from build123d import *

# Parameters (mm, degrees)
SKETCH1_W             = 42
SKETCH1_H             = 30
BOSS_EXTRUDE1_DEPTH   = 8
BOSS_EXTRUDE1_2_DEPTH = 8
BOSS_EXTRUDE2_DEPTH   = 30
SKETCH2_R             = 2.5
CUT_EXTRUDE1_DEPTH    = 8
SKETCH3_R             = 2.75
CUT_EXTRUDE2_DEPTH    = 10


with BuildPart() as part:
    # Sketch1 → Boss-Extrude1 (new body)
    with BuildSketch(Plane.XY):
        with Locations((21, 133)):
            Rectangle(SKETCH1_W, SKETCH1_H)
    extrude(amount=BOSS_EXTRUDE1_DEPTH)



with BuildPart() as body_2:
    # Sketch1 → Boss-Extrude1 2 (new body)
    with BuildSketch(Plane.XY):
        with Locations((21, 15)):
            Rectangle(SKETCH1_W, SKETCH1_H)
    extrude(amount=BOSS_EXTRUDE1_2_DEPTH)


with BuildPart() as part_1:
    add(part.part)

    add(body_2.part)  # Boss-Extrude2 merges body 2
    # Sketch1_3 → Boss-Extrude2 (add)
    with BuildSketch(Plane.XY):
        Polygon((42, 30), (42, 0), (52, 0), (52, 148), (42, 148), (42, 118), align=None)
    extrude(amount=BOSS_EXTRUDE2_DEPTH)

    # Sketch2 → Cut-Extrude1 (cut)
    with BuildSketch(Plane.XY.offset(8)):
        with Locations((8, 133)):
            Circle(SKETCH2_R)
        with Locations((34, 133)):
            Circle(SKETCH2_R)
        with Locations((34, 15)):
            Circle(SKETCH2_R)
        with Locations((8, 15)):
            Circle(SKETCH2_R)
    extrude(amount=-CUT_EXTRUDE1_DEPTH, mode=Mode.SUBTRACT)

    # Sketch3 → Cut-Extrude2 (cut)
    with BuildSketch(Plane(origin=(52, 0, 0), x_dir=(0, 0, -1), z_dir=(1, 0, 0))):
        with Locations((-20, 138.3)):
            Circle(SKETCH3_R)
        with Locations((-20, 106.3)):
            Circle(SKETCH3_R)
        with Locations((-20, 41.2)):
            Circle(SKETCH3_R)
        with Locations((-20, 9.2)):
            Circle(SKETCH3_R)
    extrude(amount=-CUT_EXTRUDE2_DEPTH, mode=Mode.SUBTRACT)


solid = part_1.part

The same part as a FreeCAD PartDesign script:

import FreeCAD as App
import Part
import Sketcher

V = App.Vector


def add_polygon(sketch, points):
    """Adds a closed chain of lines whose ends are joined by coincident constraints."""
    first, n = sketch.GeometryCount, len(points)
    for a, b in zip(points, points[1:] + points[:1]):
        sketch.addGeometry(Part.LineSegment(App.Vector(*a, 0), App.Vector(*b, 0)), False)
    for i in range(n):
        sketch.addConstraint(Sketcher.Constraint("Coincident", first + i, 2, first + (i + 1) % n, 1))

doc = App.newDocument("Part")
params = doc.addObject("Spreadsheet::Sheet", "Params")
for row, (alias, value) in enumerate([
    ("sketch1_width", "42 mm"),
    ("sketch1_height", "30 mm"),
    ("pad1_length", "8 mm"),
    ("sketch2_width", "42 mm"),
    ("sketch2_height", "30 mm"),
    ("pad2_length", "8 mm"),
    ("sketch3_width", "10 mm"),
    ("sketch3_height", "148 mm"),
    ("pad3_length", "30 mm"),
    ("sketch4_diameter", "5 mm"),
    ("pocket1_length", "8 mm"),
    ("sketch5_diameter", "5.5 mm"),
    ("pocket2_length", "10 mm"),
], start=1):
    params.set(f"A{row}", alias)
    params.set(f"B{row}", "=" + value)
    params.setAlias(f"B{row}", alias)

body = doc.addObject("PartDesign::Body", "Body")

sketch1 = doc.addObject("Sketcher::SketchObject", "Sketch")
body.addObject(sketch1)
sketch1.AttachmentSupport = (doc.XY_Plane, [""])
sketch1.MapMode = "FlatFace"
add_polygon(sketch1, [(0, 148), (0, 118), (42, 118), (42, 148)])
sketch1.addConstraint(Sketcher.Constraint("Vertical", 0))
sketch1.addConstraint(Sketcher.Constraint("Horizontal", 1))
sketch1.addConstraint(Sketcher.Constraint("Vertical", 2))
sketch1.addConstraint(Sketcher.Constraint("Horizontal", 3))
sketch1.addConstraint(Sketcher.Constraint("PointOnObject", 0, 2, -2))
sketch1.addConstraint(Sketcher.Constraint("DistanceX", 1, 1, 1, 2, 42.0))
sketch1.addConstraint(Sketcher.Constraint("DistanceY", 0, 2, 0, 1, 30.0))
sketch1.addConstraint(Sketcher.Constraint("DistanceY", -1, 1, 0, 2, 118.0))
sketch1.setExpression("Constraints[9]", "Params.sketch1_width")
sketch1.setExpression("Constraints[10]", "Params.sketch1_height")
pad1 = doc.addObject("PartDesign::Pad", "Pad")
body.addObject(pad1)
pad1.Profile = sketch1
pad1.setExpression("Length", "Params.pad1_length")
body2 = doc.addObject("PartDesign::Body", "Body001")

sketch2 = doc.addObject("Sketcher::SketchObject", "Sketch001")
body2.addObject(sketch2)
sketch2.AttachmentSupport = (doc.getObject("XY_Plane001"), [""])
sketch2.MapMode = "FlatFace"
add_polygon(sketch2, [(0, 30), (0, 0), (42, 0), (42, 30)])
sketch2.addConstraint(Sketcher.Constraint("Vertical", 0))
sketch2.addConstraint(Sketcher.Constraint("Horizontal", 1))
sketch2.addConstraint(Sketcher.Constraint("Vertical", 2))
sketch2.addConstraint(Sketcher.Constraint("Horizontal", 3))
sketch2.addConstraint(Sketcher.Constraint("Coincident", 0, 2, -1, 1))
sketch2.addConstraint(Sketcher.Constraint("DistanceX", 1, 1, 1, 2, 42.0))
sketch2.addConstraint(Sketcher.Constraint("DistanceY", 0, 2, 0, 1, 30.0))
sketch2.setExpression("Constraints[9]", "Params.sketch2_width")
sketch2.setExpression("Constraints[10]", "Params.sketch2_height")
pad2 = doc.addObject("PartDesign::Pad", "Pad001")
body2.addObject(pad2)
pad2.Profile = sketch2
pad2.setExpression("Length", "Params.pad2_length")
body.AllowCompound = True
doc.recompute()

boolean = doc.addObject("PartDesign::Boolean", "Boolean")
body.addObject(boolean)
boolean.Type = "Fuse"
boolean.addObjects([body2])

sketch3 = doc.addObject("Sketcher::SketchObject", "Sketch002")
body.addObject(sketch3)
sketch3.AttachmentSupport = (doc.XY_Plane, [""])
sketch3.MapMode = "FlatFace"
add_polygon(sketch3, [(42, 0), (52, 0), (52, 148), (42, 148)])
sketch3.addConstraint(Sketcher.Constraint("Horizontal", 0))
sketch3.addConstraint(Sketcher.Constraint("Vertical", 1))
sketch3.addConstraint(Sketcher.Constraint("Horizontal", 2))
sketch3.addConstraint(Sketcher.Constraint("Vertical", 3))
sketch3.addConstraint(Sketcher.Constraint("PointOnObject", 0, 2, -1))
sketch3.addConstraint(Sketcher.Constraint("DistanceX", 0, 1, 0, 2, 10.0))
sketch3.addConstraint(Sketcher.Constraint("DistanceY", 1, 1, 1, 2, 148.0))
sketch3.addConstraint(Sketcher.Constraint("DistanceX", -1, 1, 0, 2, 52.0))
sketch3.setExpression("Constraints[9]", "Params.sketch3_width")
sketch3.setExpression("Constraints[10]", "Params.sketch3_height")
pad3 = doc.addObject("PartDesign::Pad", "Pad002")
body.addObject(pad3)
pad3.Profile = sketch3
pad3.setExpression("Length", "Params.pad3_length")

sketch4 = doc.addObject("Sketcher::SketchObject", "Sketch003")
body.addObject(sketch4)
sketch4.AttachmentSupport = (doc.XY_Plane, [""])
sketch4.MapMode = "FlatFace"
sketch4.AttachmentOffset = App.Placement(V(0, 0, 8), App.Rotation())
sketch4.addGeometry(Part.Circle(V(8, 133, 0), V(0, 0, 1), 2.5), False)
sketch4.addGeometry(Part.Circle(V(34, 133, 0), V(0, 0, 1), 2.5), False)
sketch4.addGeometry(Part.Circle(V(34, 15, 0), V(0, 0, 1), 2.5), False)
sketch4.addGeometry(Part.Circle(V(8, 15, 0), V(0, 0, 1), 2.5), False)
sketch4.addConstraint(Sketcher.Constraint("Equal", 0, 1))
sketch4.addConstraint(Sketcher.Constraint("Equal", 1, 2))
sketch4.addConstraint(Sketcher.Constraint("Equal", 2, 3))
sketch4.addConstraint(Sketcher.Constraint("Horizontal", 0, 3, 1, 3))
sketch4.addConstraint(Sketcher.Constraint("Horizontal", 2, 3, 3, 3))
sketch4.addConstraint(Sketcher.Constraint("Vertical", 1, 3, 2, 3))
sketch4.addConstraint(Sketcher.Constraint("Vertical", 0, 3, 3, 3))
sketch4.addConstraint(Sketcher.Constraint("Diameter", 0, 5.0))
sketch4.addConstraint(Sketcher.Constraint("DistanceX", -1, 1, 0, 3, 8.0))
sketch4.addConstraint(Sketcher.Constraint("DistanceY", -1, 1, 0, 3, 133.0))
sketch4.addConstraint(Sketcher.Constraint("DistanceX", -1, 1, 1, 3, 34.0))
sketch4.addConstraint(Sketcher.Constraint("DistanceY", -1, 1, 2, 3, 15.0))
sketch4.setExpression("Constraints[7]", "Params.sketch4_diameter")
pocket1 = doc.addObject("PartDesign::Pocket", "Pocket")
body.addObject(pocket1)
pocket1.Profile = sketch4
pocket1.setExpression("Length", "Params.pocket1_length")

sketch5 = doc.addObject("Sketcher::SketchObject", "Sketch004")
body.addObject(sketch5)
sketch5.AttachmentSupport = (doc.YZ_Plane, [""])
sketch5.MapMode = "FlatFace"
sketch5.AttachmentOffset = App.Placement(V(0, 0, 52), App.Rotation())
sketch5.addGeometry(Part.Circle(V(138.3, 20, 0), V(0, 0, 1), 2.8), False)
sketch5.addGeometry(Part.Circle(V(106.3, 20, 0), V(0, 0, 1), 2.8), False)
sketch5.addGeometry(Part.Circle(V(41.2, 20, 0), V(0, 0, 1), 2.8), False)
sketch5.addGeometry(Part.Circle(V(9.2, 20, 0), V(0, 0, 1), 2.8), False)
sketch5.addConstraint(Sketcher.Constraint("Equal", 0, 1))
sketch5.addConstraint(Sketcher.Constraint("Equal", 1, 2))
sketch5.addConstraint(Sketcher.Constraint("Equal", 2, 3))
sketch5.addConstraint(Sketcher.Constraint("Horizontal", 0, 3, 1, 3))
sketch5.addConstraint(Sketcher.Constraint("Horizontal", 1, 3, 2, 3))
sketch5.addConstraint(Sketcher.Constraint("Horizontal", 2, 3, 3, 3))
sketch5.addConstraint(Sketcher.Constraint("Diameter", 0, 5.5))
sketch5.addConstraint(Sketcher.Constraint("DistanceY", -1, 1, 0, 3, 20.0))
sketch5.addConstraint(Sketcher.Constraint("DistanceX", 1, 3, 0, 3, 32.0))
sketch5.addConstraint(Sketcher.Constraint("DistanceX", 3, 3, 2, 3, 32.0))
sketch5.addConstraint(Sketcher.Constraint("DistanceX", -1, 1, 0, 3, 138.3))
sketch5.addConstraint(Sketcher.Constraint("DistanceX", -1, 1, 2, 3, 41.2))
sketch5.setExpression("Constraints[6]", "Params.sketch5_diameter")
pocket2 = doc.addObject("PartDesign::Pocket", "Pocket001")
body.addObject(pocket2)
pocket2.Profile = sketch5
pocket2.setExpression("Length", "Params.pocket2_length")

doc.recompute()
